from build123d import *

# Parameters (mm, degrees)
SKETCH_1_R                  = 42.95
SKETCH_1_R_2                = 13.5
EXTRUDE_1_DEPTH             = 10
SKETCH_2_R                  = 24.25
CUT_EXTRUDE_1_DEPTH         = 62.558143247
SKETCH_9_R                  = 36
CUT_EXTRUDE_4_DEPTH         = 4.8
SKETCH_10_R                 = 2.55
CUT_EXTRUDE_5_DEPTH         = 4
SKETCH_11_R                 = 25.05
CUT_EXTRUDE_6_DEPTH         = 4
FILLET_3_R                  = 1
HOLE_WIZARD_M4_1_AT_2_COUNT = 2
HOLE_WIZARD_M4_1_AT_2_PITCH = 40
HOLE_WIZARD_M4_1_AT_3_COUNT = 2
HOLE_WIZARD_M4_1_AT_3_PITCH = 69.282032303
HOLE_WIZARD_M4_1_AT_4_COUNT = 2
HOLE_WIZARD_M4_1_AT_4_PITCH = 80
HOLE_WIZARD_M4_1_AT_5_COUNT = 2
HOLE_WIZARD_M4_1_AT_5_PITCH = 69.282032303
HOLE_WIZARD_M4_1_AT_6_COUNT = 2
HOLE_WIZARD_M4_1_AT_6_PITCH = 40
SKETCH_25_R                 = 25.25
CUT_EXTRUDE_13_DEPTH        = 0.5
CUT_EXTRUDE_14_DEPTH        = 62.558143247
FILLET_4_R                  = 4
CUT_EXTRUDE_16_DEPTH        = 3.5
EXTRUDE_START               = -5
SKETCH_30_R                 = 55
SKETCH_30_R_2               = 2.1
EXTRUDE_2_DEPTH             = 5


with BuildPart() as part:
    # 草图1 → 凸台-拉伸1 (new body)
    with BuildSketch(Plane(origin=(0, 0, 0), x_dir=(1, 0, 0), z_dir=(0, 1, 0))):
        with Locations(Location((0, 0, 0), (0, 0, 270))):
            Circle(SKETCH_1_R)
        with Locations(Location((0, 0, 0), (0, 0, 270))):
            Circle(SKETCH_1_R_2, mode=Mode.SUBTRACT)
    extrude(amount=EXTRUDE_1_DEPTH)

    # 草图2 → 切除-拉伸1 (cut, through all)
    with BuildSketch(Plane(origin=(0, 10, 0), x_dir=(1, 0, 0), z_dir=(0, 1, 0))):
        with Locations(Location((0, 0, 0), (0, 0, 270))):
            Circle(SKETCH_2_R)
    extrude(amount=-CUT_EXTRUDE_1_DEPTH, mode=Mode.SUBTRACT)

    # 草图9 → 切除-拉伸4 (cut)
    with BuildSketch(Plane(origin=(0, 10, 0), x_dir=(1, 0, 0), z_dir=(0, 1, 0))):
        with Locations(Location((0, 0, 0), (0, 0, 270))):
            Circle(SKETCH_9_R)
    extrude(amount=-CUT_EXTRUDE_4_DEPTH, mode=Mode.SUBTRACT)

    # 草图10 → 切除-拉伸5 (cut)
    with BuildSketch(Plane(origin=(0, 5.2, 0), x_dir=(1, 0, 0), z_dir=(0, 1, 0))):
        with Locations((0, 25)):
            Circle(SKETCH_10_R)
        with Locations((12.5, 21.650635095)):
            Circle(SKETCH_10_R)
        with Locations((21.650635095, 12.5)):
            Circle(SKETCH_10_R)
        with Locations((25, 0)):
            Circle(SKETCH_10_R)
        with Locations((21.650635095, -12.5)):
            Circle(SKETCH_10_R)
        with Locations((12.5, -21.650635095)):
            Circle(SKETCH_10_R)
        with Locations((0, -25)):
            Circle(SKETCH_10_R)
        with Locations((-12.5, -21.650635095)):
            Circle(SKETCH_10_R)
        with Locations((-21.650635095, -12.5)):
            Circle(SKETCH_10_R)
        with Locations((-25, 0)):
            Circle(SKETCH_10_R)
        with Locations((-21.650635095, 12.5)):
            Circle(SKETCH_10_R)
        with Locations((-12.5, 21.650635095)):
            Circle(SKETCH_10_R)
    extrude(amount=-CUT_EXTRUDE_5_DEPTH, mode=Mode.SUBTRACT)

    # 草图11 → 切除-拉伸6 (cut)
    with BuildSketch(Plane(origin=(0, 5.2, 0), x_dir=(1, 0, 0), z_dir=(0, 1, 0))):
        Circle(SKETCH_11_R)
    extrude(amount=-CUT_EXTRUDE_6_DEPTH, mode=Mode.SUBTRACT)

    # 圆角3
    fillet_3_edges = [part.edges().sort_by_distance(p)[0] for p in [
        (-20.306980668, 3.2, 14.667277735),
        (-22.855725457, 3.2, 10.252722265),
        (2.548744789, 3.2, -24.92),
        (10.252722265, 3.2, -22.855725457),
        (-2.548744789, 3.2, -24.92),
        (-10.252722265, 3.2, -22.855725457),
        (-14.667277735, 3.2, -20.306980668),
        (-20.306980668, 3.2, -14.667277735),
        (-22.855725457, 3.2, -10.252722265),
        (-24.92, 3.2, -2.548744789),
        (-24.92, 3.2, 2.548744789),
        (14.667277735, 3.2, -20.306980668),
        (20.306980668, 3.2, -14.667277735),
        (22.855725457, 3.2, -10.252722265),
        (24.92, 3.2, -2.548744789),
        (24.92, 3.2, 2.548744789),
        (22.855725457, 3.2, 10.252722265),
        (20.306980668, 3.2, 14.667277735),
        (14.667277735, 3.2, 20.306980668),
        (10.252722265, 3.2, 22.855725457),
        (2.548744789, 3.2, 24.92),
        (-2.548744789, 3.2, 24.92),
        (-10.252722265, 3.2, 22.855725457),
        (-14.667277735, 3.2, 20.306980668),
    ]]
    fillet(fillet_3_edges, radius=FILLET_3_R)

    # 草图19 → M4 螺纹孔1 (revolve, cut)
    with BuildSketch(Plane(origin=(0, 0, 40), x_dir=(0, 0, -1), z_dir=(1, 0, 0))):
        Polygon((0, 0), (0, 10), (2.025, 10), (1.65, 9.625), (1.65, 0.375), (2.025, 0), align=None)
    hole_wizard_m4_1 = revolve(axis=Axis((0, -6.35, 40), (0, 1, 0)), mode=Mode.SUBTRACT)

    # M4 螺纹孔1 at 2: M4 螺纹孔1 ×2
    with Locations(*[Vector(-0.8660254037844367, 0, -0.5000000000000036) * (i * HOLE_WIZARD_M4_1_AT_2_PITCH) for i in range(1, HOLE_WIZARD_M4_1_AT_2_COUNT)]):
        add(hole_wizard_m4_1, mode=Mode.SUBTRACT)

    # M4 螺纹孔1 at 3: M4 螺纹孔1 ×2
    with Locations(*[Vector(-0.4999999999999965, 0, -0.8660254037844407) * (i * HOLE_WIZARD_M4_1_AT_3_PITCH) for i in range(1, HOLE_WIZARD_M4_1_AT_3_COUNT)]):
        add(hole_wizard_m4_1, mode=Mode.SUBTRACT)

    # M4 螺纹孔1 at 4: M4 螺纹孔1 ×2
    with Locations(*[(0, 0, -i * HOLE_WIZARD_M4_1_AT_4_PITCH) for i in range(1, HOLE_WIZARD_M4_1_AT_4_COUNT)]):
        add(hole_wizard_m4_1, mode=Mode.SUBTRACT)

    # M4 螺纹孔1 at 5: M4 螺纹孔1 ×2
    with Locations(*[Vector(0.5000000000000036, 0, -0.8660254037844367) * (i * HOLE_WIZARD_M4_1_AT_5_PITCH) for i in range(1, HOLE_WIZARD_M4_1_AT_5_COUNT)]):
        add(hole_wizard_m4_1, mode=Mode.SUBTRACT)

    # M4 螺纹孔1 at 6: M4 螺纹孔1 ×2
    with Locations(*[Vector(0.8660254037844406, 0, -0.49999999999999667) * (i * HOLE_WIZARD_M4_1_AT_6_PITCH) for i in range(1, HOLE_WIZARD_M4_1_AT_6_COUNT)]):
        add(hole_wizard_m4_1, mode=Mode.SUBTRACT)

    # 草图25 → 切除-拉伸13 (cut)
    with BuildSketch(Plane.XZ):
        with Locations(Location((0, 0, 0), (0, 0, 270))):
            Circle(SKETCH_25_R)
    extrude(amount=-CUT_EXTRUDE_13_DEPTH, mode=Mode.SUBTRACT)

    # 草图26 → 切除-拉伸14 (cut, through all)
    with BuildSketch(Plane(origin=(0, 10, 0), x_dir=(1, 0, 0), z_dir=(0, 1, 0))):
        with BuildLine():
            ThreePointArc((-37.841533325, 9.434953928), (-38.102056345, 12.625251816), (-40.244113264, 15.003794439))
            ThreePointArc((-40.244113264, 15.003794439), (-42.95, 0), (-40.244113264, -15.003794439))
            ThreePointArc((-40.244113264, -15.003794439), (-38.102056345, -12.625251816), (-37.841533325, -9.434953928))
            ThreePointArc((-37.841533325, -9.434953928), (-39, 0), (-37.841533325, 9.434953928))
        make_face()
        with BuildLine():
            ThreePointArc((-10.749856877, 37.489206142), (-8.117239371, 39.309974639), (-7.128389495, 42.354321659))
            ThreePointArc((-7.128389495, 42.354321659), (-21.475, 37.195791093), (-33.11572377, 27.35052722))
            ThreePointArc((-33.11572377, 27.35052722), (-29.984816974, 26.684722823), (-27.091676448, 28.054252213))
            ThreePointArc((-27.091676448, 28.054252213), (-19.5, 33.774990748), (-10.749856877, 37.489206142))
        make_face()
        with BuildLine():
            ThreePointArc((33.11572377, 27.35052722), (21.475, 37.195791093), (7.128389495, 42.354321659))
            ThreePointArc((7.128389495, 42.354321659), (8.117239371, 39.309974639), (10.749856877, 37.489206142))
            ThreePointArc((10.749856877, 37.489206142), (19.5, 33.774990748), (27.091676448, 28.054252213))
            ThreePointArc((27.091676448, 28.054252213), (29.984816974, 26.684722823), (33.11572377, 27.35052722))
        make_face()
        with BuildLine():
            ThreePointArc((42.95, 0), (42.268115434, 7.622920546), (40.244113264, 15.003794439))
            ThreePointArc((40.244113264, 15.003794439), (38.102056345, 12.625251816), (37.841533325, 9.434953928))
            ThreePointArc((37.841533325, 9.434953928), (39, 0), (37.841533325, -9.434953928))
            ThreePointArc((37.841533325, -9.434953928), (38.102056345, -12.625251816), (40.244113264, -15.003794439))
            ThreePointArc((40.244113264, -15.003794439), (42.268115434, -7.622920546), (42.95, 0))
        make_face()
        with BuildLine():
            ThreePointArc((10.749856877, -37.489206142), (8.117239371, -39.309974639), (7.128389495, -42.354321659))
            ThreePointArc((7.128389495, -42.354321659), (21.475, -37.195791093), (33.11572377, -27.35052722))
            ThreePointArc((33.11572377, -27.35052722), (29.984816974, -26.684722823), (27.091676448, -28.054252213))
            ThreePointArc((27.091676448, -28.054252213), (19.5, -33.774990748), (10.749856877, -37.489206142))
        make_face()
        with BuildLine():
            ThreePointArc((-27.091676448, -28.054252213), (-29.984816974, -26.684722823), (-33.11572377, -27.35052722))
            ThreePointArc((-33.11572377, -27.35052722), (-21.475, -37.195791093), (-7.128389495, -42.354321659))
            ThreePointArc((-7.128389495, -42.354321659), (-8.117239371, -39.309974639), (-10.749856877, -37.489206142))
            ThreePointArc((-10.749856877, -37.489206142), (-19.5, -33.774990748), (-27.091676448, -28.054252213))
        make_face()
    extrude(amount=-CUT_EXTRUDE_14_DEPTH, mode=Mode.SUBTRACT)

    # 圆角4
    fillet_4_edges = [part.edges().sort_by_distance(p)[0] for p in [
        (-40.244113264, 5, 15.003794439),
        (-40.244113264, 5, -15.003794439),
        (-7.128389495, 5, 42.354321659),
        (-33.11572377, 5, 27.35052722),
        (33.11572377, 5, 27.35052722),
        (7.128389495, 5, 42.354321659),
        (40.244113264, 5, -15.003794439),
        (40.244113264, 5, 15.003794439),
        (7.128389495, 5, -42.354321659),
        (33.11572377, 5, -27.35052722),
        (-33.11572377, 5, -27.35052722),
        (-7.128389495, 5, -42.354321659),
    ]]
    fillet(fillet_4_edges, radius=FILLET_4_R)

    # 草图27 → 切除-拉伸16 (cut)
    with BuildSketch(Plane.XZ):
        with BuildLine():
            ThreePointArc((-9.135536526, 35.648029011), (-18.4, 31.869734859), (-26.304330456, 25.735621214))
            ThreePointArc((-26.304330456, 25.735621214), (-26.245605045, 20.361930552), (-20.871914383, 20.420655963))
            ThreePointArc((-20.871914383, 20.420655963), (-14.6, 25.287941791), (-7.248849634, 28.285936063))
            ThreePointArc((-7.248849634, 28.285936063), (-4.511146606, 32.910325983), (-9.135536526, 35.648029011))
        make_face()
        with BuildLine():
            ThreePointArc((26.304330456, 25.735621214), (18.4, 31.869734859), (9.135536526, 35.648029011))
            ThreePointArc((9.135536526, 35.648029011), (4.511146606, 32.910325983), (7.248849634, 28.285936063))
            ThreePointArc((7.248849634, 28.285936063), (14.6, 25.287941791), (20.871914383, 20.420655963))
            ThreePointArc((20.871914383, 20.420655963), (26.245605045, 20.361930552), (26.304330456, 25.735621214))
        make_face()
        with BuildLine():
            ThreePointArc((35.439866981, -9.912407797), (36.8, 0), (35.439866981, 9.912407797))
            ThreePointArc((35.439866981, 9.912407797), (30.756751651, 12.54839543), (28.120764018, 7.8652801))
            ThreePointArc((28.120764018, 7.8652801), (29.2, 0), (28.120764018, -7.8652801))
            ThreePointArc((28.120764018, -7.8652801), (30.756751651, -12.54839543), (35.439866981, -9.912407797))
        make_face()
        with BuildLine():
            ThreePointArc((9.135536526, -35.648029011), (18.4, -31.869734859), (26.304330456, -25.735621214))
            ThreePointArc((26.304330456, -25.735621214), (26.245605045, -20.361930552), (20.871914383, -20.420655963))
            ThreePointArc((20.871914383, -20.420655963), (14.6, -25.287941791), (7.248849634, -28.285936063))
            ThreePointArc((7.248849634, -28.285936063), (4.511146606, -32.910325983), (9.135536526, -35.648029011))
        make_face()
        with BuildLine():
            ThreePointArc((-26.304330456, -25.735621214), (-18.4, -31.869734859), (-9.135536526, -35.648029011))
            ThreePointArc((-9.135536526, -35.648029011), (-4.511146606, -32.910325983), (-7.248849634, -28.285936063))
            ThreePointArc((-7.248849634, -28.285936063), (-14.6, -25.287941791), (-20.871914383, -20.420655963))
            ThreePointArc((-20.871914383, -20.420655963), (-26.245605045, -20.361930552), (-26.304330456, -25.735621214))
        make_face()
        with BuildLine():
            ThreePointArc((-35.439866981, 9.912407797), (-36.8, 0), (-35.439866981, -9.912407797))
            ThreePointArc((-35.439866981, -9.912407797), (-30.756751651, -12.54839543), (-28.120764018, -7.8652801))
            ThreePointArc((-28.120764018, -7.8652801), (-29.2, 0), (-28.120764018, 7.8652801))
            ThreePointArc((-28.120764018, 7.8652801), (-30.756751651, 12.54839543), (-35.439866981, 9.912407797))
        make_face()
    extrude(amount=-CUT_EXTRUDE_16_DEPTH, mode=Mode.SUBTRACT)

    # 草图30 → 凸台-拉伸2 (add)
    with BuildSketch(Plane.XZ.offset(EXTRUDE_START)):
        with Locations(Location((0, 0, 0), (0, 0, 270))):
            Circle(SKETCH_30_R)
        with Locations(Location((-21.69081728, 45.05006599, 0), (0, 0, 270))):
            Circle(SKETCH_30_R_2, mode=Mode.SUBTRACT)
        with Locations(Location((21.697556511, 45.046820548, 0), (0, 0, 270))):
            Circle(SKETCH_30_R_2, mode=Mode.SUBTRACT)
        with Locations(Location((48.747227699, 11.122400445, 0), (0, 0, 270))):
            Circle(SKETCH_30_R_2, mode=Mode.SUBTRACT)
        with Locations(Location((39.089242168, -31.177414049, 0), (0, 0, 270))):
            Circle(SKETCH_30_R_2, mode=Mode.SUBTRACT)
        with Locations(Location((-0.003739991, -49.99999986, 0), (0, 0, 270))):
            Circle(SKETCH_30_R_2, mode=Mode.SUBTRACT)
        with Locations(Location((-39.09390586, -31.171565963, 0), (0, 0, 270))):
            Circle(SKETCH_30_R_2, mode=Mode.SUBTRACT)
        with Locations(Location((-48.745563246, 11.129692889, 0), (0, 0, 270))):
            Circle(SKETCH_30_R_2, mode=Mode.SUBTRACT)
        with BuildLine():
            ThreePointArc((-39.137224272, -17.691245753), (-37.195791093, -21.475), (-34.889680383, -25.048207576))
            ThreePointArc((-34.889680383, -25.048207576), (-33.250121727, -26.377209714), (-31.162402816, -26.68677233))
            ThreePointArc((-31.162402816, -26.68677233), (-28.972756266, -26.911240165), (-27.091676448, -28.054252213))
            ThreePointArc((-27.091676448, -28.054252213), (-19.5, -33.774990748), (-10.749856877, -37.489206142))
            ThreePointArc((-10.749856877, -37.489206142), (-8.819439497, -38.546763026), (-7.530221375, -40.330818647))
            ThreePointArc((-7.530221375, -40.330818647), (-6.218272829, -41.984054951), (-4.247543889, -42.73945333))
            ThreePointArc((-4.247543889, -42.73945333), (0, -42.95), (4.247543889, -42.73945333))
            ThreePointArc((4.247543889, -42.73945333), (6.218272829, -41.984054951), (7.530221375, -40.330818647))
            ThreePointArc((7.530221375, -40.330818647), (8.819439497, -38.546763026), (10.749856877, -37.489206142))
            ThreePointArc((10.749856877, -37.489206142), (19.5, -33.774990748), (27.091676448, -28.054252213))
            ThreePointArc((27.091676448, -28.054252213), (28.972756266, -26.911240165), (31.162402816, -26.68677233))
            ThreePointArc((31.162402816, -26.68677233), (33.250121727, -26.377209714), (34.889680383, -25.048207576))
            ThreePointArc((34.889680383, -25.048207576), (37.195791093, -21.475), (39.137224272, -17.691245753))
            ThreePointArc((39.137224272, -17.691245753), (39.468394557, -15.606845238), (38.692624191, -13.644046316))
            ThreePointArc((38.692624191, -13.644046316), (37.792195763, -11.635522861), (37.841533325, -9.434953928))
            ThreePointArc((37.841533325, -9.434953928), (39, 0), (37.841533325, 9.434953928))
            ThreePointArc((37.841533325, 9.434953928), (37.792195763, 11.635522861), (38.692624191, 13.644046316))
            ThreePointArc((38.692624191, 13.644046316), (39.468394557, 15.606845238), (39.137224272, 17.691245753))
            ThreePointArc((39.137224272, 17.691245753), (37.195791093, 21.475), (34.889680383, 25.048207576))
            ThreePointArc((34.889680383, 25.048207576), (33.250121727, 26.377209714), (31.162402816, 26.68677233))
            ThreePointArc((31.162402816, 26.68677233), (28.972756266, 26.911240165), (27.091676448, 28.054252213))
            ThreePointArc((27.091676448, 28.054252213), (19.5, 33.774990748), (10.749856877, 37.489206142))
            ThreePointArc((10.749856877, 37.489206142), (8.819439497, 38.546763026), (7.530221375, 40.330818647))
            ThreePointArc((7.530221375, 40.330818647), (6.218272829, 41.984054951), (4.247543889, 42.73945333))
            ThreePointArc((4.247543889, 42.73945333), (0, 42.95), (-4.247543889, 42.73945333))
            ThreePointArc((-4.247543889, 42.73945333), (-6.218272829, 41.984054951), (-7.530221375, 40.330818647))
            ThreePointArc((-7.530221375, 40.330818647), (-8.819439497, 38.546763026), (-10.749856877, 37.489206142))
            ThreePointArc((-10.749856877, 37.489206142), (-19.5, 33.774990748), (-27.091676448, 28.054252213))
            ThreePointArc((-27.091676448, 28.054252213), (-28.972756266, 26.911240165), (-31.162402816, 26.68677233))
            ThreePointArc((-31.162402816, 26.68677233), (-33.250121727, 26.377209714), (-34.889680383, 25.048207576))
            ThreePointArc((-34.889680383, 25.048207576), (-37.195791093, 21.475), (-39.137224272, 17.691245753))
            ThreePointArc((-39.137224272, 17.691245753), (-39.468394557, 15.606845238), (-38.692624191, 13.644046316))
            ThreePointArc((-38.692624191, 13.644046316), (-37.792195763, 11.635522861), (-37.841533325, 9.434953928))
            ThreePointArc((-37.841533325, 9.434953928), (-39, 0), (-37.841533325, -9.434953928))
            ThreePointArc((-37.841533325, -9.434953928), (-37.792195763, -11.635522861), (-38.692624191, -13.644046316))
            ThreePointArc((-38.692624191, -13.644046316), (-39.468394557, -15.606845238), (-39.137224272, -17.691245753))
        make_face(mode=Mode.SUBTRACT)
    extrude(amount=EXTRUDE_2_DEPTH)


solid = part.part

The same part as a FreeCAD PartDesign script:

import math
import FreeCAD as App
import Part
import Sketcher


def edges_at(feature, points):
    """Names of the edges that pass closest to the given points."""
    edges = feature.Shape.Edges
    near = lambda p: min(range(len(edges)), key=lambda i: edges[i].distToShape(Part.Vertex(*p))[0])
    return sorted({f"Edge{near(p) + 1}" for p in points})


def add_polygon(sketch, points):
    """Adds a closed chain of lines whose ends are joined by coincident constraints."""
    first, n = sketch.GeometryCount, len(points)
    for a, b in zip(points, points[1:] + points[:1]):
        sketch.addGeometry(Part.LineSegment(App.Vector(*a, 0), App.Vector(*b, 0)), False)
    for i in range(n):
        sketch.addConstraint(Sketcher.Constraint("Coincident", first + i, 2, first + (i + 1) % n, 1))

doc = App.newDocument("Part")
body = doc.addObject("PartDesign::Body", "Body")

sketch1 = body.newObject("Sketcher::SketchObject", "Sketch")
sketch1.AttachmentSupport = (doc.getObject("XZ_Plane"), [""])
sketch1.MapMode = "FlatFace"
sketch1.addGeometry([
    Part.Circle(App.Vector(0, 0, 0), App.Vector(0, 0, 1), 42.95),
    Part.Circle(App.Vector(0, 0, 0), App.Vector(0, 0, 1), 13.5),
], False)
sketch1.addConstraint([
    Sketcher.Constraint("Coincident", 0, 3, -1, 1),
    Sketcher.Constraint("Coincident", 1, 3, -1, 1),
    Sketcher.Constraint("Diameter", 1, 27.0),
    Sketcher.Constraint("Diameter", 0, 85.9),
])
pad1 = body.newObject("PartDesign::Pad", "Pad")
pad1.Profile = sketch1
pad1.Length = 10
pad1.Reversed = True

sketch2 = body.newObject("Sketcher::SketchObject", "Sketch001")
sketch2.AttachmentSupport = (doc.getObject("XZ_Plane"), [""])
sketch2.MapMode = "FlatFace"
sketch2.AttachmentOffset = App.Placement(App.Vector(0, 0, -10), App.Rotation())
sketch2.addGeometry(Part.Circle(App.Vector(0, 0, 0), App.Vector(0, 0, 1), 24.25), False)
sketch2.addConstraint([
    Sketcher.Constraint("Coincident", 0, 3, -1, 1),
    Sketcher.Constraint("Diameter", 0, 48.5),
])
pocket1 = body.newObject("PartDesign::Pocket", "Pocket")
pocket1.Profile = sketch2
pocket1.Type = "ThroughAll"
pocket1.Reversed = True

sketch3 = body.newObject("Sketcher::SketchObject", "Sketch002")
sketch3.AttachmentSupport = (doc.getObject("XZ_Plane"), [""])
sketch3.MapMode = "FlatFace"
sketch3.AttachmentOffset = App.Placement(App.Vector(0, 0, -10), App.Rotation())
sketch3.addGeometry(Part.Circle(App.Vector(0, 0, 0), App.Vector(0, 0, 1), 36), False)
sketch3.addConstraint([
    Sketcher.Constraint("Coincident", 0, 3, -1, 1),
    Sketcher.Constraint("Diameter", 0, 72.0),
])
pocket2 = body.newObject("PartDesign::Pocket", "Pocket001")
pocket2.Profile = sketch3
pocket2.Length = 4.8
pocket2.Reversed = True

sketch4 = body.newObject("Sketcher::SketchObject", "Sketch003")
sketch4.AttachmentSupport = (doc.getObject("XZ_Plane"), [""])
sketch4.MapMode = "FlatFace"
sketch4.AttachmentOffset = App.Placement(App.Vector(0, 0, -5.2), App.Rotation())
sketch4.addGeometry([
    Part.Circle(App.Vector(0, -25, 0), App.Vector(0, 0, 1), 2.55),
    Part.Circle(App.Vector(12.5, -21.650635, 0), App.Vector(0, 0, 1), 2.55),
    Part.Circle(App.Vector(21.650635, -12.5, 0), App.Vector(0, 0, 1), 2.55),
    Part.Circle(App.Vector(25, 0, 0), App.Vector(0, 0, 1), 2.55),
    Part.Circle(App.Vector(21.650635, 12.5, 0), App.Vector(0, 0, 1), 2.55),
    Part.Circle(App.Vector(12.5, 21.650635, 0), App.Vector(0, 0, 1), 2.55),
    Part.Circle(App.Vector(0, 25, 0), App.Vector(0, 0, 1), 2.55),
    Part.Circle(App.Vector(-12.5, 21.650635, 0), App.Vector(0, 0, 1), 2.55),
    Part.Circle(App.Vector(-21.650635, 12.5, 0), App.Vector(0, 0, 1), 2.55),
    Part.Circle(App.Vector(-25, 0, 0), App.Vector(0, 0, 1), 2.55),
    Part.Circle(App.Vector(-21.650635, -12.5, 0), App.Vector(0, 0, 1), 2.55),
    Part.Circle(App.Vector(-12.5, -21.650635, 0), App.Vector(0, 0, 1), 2.55),
], False)
sketch4.addConstraint([
    Sketcher.Constraint("Equal", 0, 1),
    Sketcher.Constraint("Equal", 1, 2),
    Sketcher.Constraint("Equal", 2, 3),
    Sketcher.Constraint("Equal", 3, 4),
    Sketcher.Constraint("Equal", 4, 5),
    Sketcher.Constraint("Equal", 5, 6),
    Sketcher.Constraint("Equal", 6, 7),
    Sketcher.Constraint("Equal", 7, 8),
    Sketcher.Constraint("Equal", 8, 9),
    Sketcher.Constraint("Equal", 9, 10),
    Sketcher.Constraint("Equal", 10, 11),
    Sketcher.Constraint("Symmetric", 0, 3, 6, 3, -1, 1),
    Sketcher.Constraint("Symmetric", 1, 3, 7, 3, -1, 1),
    Sketcher.Constraint("Symmetric", 2, 3, 8, 3, -1, 1),
    Sketcher.Constraint("Symmetric", 3, 3, 9, 3, -1, 1),
    Sketcher.Constraint("Symmetric", 4, 3, 10, 3, -1, 1),
    Sketcher.Constraint("Symmetric", 5, 3, 11, 3, -1, 1),
    Sketcher.Constraint("Symmetric", 5, 3, 7, 3, -2),
    Sketcher.Constraint("Symmetric", 4, 3, 8, 3, -2),
    Sketcher.Constraint("PointOnObject", 0, 3, -2),
    Sketcher.Constraint("PointOnObject", 3, 3, -1),
    Sketcher.Constraint("Diameter", 0, 5.1),
    Sketcher.Constraint("DistanceY", 0, 3, -1, 1, 25.0),
    Sketcher.Constraint("DistanceX", -1, 1, 3, 3, 25.0),
    Sketcher.Constraint("DistanceY", 2, 3, 4, 3, 25.0),
    Sketcher.Constraint("DistanceX", 7, 3, 5, 3, 25.0),
    Sketcher.Constraint("DistanceY", 1, 3, 5, 3, 43.30127),
    Sketcher.Constraint("DistanceX", 8, 3, 4, 3, 43.30127),
])
pocket3 = body.newObject("PartDesign::Pocket", "Pocket002")
pocket3.Profile = sketch4
pocket3.Length = 4
pocket3.Reversed = True

sketch5 = body.newObject("Sketcher::SketchObject", "Sketch004")
sketch5.AttachmentSupport = (doc.getObject("XZ_Plane"), [""])
sketch5.MapMode = "FlatFace"
sketch5.AttachmentOffset = App.Placement(App.Vector(0, 0, -5.2), App.Rotation())
sketch5.addGeometry(Part.Circle(App.Vector(0, 0, 0), App.Vector(0, 0, 1), 25.05), False)
sketch5.addConstraint([
    Sketcher.Constraint("Coincident", 0, 3, -1, 1),
    Sketcher.Constraint("Diameter", 0, 50.1),
])
pocket4 = body.newObject("PartDesign::Pocket", "Pocket003")
pocket4.Profile = sketch5
pocket4.Length = 4
pocket4.Reversed = True
doc.recompute()

fillet = body.newObject("PartDesign::Fillet", "Fillet")
fillet.Base = (pocket4, edges_at(pocket4, [
    (-20.307, 3.2, 14.667),
    (-22.856, 3.2, 10.253),
    (2.549, 3.2, -24.92),
    (10.253, 3.2, -22.856),
    (-2.549, 3.2, -24.92),
    (-10.253, 3.2, -22.856),
    (-14.667, 3.2, -20.307),
    (-20.307, 3.2, -14.667),
    (-22.856, 3.2, -10.253),
    (-24.92, 3.2, -2.549),
    (-24.92, 3.2, 2.549),
    (14.667, 3.2, -20.307),
    (20.307, 3.2, -14.667),
    (22.856, 3.2, -10.253),
    (24.92, 3.2, -2.549),
    (24.92, 3.2, 2.549),
    (22.856, 3.2, 10.253),
    (20.307, 3.2, 14.667),
    (14.667, 3.2, 20.307),
    (10.253, 3.2, 22.856),
    (2.549, 3.2, 24.92),
    (-2.549, 3.2, 24.92),
    (-10.253, 3.2, 22.856),
    (-14.667, 3.2, 20.307),
]))
fillet.Radius = 1

sketch6 = body.newObject("Sketcher::SketchObject", "Sketch005")
sketch6.AttachmentSupport = (doc.getObject("YZ_Plane"), [""])
sketch6.MapMode = "FlatFace"
add_polygon(sketch6, [(10, 40), (0, 40), (0, 37.975), (0.375, 38.35), (9.625, 38.35), (10, 37.975)])
sketch6.addGeometry(Part.LineSegment(App.Vector(0, 40, 0), App.Vector(10, 40, 0)), True)
sketch6.addConstraint([
    Sketcher.Constraint("Horizontal", 0),
    Sketcher.Constraint("Vertical", 1),
    Sketcher.Constraint("Horizontal", 3),
    Sketcher.Constraint("Vertical", 5),
    Sketcher.Constraint("Horizontal", 6),
    Sketcher.Constraint("Coincident", 6, 1, 0, 2),
    Sketcher.Constraint("PointOnObject", 0, 2, -2),
    Sketcher.Constraint("Perpendicular", 2, 4),
    Sketcher.Constraint("Horizontal", 1, 2, 4, 2),
    Sketcher.Constraint("Vertical", 4, 2, 6, 2),
    Sketcher.Constraint("Equal", 2, 4),
    Sketcher.Constraint("DistanceX", 0, 2, 0, 1, 10.0),
    Sketcher.Constraint("DistanceY", -1, 1, 0, 2, 40.0),
    Sketcher.Constraint("DistanceX", 3, 1, 3, 2, 9.25),
    Sketcher.Constraint("DistanceY", 1, 2, 1, 1, 2.025),
])
groove = body.newObject("PartDesign::Groove", "Groove")
groove.Profile = sketch6
groove.ReferenceAxis = (sketch6, ["Axis0"])
groove.Angle = 360
doc.recompute()

datumline = body.newObject("PartDesign::Line", "DatumLine")
datumline.Placement = App.Placement(App.Vector(0, 0, 0), App.Rotation(App.Vector(0, 0, 1), App.Vector(-0.866025404, 0, -0.5)))
linearpattern = body.newObject("PartDesign::LinearPattern", "LinearPattern")
linearpattern.Originals = [groove]
linearpattern.Direction = (datumline, [""])
linearpattern.Mode = "offset"
linearpattern.Offset = 40
linearpattern.Occurrences = 2
body.Tip = linearpattern
doc.recompute()

datumline2 = body.newObject("PartDesign::Line", "DatumLine001")
datumline2.Placement = App.Placement(App.Vector(0, 0, 0), App.Rotation(App.Vector(0, 0, 1), App.Vector(-0.5, 0, -0.866025404)))
linearpattern2 = body.newObject("PartDesign::LinearPattern", "LinearPattern001")
linearpattern2.Originals = [groove]
linearpattern2.Direction = (datumline2, [""])
linearpattern2.Mode = "offset"
linearpattern2.Offset = 69.282032
linearpattern2.Occurrences = 2
body.Tip = linearpattern2
doc.recompute()

linearpattern3 = body.newObject("PartDesign::LinearPattern", "LinearPattern002")
linearpattern3.Originals = [groove]
linearpattern3.Direction = (doc.getObject("Z_Axis"), [""])
linearpattern3.Mode = "offset"
linearpattern3.Offset = 80
linearpattern3.Occurrences = 2
linearpattern3.Reversed = True
body.Tip = linearpattern3
doc.recompute()

datumline3 = body.newObject("PartDesign::Line", "DatumLine002")
datumline3.Placement = App.Placement(App.Vector(0, 0, 0), App.Rotation(App.Vector(0, 0, 1), App.Vector(0.5, 0, -0.866025404)))
linearpattern4 = body.newObject("PartDesign::LinearPattern", "LinearPattern003")
linearpattern4.Originals = [groove]
linearpattern4.Direction = (datumline3, [""])
linearpattern4.Mode = "offset"
linearpattern4.Offset = 69.282032
linearpattern4.Occurrences = 2
body.Tip = linearpattern4
doc.recompute()

datumline4 = body.newObject("PartDesign::Line", "DatumLine003")
datumline4.Placement = App.Placement(App.Vector(0, 0, 0), App.Rotation(App.Vector(0, 0, 1), App.Vector(0.866025404, 0, -0.5)))
linearpattern5 = body.newObject("PartDesign::LinearPattern", "LinearPattern004")
linearpattern5.Originals = [groove]
linearpattern5.Direction = (datumline4, [""])
linearpattern5.Mode = "offset"
linearpattern5.Offset = 40
linearpattern5.Occurrences = 2
body.Tip = linearpattern5

sketch7 = body.newObject("Sketcher::SketchObject", "Sketch006")
sketch7.AttachmentSupport = (doc.getObject("XZ_Plane"), [""])
sketch7.MapMode = "FlatFace"
sketch7.addGeometry(Part.Circle(App.Vector(0, 0, 0), App.Vector(0, 0, 1), 25.25), False)
sketch7.addConstraint([
    Sketcher.Constraint("Coincident", 0, 3, -1, 1),
    Sketcher.Constraint("Diameter", 0, 50.5),
])
pocket5 = body.newObject("PartDesign::Pocket", "Pocket004")
pocket5.Profile = sketch7
pocket5.Length = 0.5

sketch8 = body.newObject("Sketcher::SketchObject", "Sketch007")
sketch8.AttachmentSupport = (doc.getObject("XZ_Plane"), [""])
sketch8.MapMode = "FlatFace"
sketch8.AttachmentOffset = App.Placement(App.Vector(0, 0, -10), App.Rotation())
sketch8.addGeometry([
    Part.ArcOfCircle(Part.Circle(App.Vector(-42.693012, -10.644563, 0), App.Vector(0, 0, 1), 5), math.radians(-60.673895), math.radians(14)),
    Part.ArcOfCircle(Part.Circle(App.Vector(0, 0, 0), App.Vector(0, 0, 1), 42.95), math.radians(159.553559), math.radians(200.446441)),
    Part.ArcOfCircle(Part.Circle(App.Vector(-42.693012, 10.644563, 0), App.Vector(0, 0, 1), 5), math.radians(-14), math.radians(60.673895)),
    Part.ArcOfCircle(Part.Circle(App.Vector(0, 0, 0), App.Vector(0, 0, 1), 39), math.radians(166), math.radians(194)),
    Part.ArcOfCircle(Part.Circle(App.Vector(-12.128044, -42.295515, 0), App.Vector(0, 0, 1), 5), math.radians(-0.673895), math.radians(74)),
    Part.ArcOfCircle(Part.Circle(App.Vector(0, 0, 0), App.Vector(0, 0, 1), 42.95), math.radians(-140.446441), math.radians(-99.553559)),
    Part.ArcOfCircle(Part.Circle(App.Vector(-30.564968, -31.650951, 0), App.Vector(0, 0, 1), 5), math.radians(46), math.radians(120.673895)),
    Part.ArcOfCircle(Part.Circle(App.Vector(0, 0, 0), App.Vector(0, 0, 1), 39), math.radians(-134), math.radians(-106)),
    Part.ArcOfCircle(Part.Circle(App.Vector(0, 0, 0), App.Vector(0, 0, 1), 42.95), math.radians(-80.446441), math.radians(-39.553559)),
    Part.ArcOfCircle(Part.Circle(App.Vector(12.128044, -42.295515, 0), App.Vector(0, 0, 1), 5), math.radians(106), math.radians(180.673895)),
    Part.ArcOfCircle(Part.Circle(App.Vector(0, 0, 0), App.Vector(0, 0, 1), 39), math.radians(-74), math.radians(-46)),
    Part.ArcOfCircle(Part.Circle(App.Vector(30.564968, -31.650951, 0), App.Vector(0, 0, 1), 5), math.radians(59.326105), math.radians(134)),
    Part.ArcOfCircle(Part.Circle(App.Vector(0, 0, 0), App.Vector(0, 0, 1), 42.95), math.radians(-20.446441), math.radians(0)),
    Part.ArcOfCircle(Part.Circle(App.Vector(42.693012, -10.644563, 0), App.Vector(0, 0, 1), 5), math.radians(166), math.radians(240.673895)),
    Part.ArcOfCircle(Part.Circle(App.Vector(0, 0, 0), App.Vector(0, 0, 1), 39), math.radians(-14), math.radians(14)),
    Part.ArcOfCircle(Part.Circle(App.Vector(42.693012, 10.644563, 0), App.Vector(0, 0, 1), 5), math.radians(119.326105), math.radians(194)),
    Part.ArcOfCircle(Part.Circle(App.Vector(0, 0, 0), App.Vector(0, 0, 1), 42.95), math.radians(0), math.radians(20.446441)),
    Part.ArcOfCircle(Part.Circle(App.Vector(12.128044, 42.295515, 0), App.Vector(0, 0, 1), 5), math.radians(179.326105), math.radians(254)),
    Part.ArcOfCircle(Part.Circle(App.Vector(0, 0, 0), App.Vector(0, 0, 1), 42.95), math.radians(39.553559), math.radians(80.446441)),
    Part.ArcOfCircle(Part.Circle(App.Vector(30.564968, 31.650951, 0), App.Vector(0, 0, 1), 5), math.radians(-134), math.radians(-59.326105)),
    Part.ArcOfCircle(Part.Circle(App.Vector(0, 0, 0), App.Vector(0, 0, 1), 39), math.radians(46), math.radians(74)),
    Part.ArcOfCircle(Part.Circle(App.Vector(-30.564968, 31.650951, 0), App.Vector(0, 0, 1), 5), math.radians(-120.673895), math.radians(-46)),
    Part.ArcOfCircle(Part.Circle(App.Vector(0, 0, 0), App.Vector(0, 0, 1), 42.95), math.radians(99.553559), math.radians(140.446441)),
    Part.ArcOfCircle(Part.Circle(App.Vector(-12.128044, 42.295515, 0), App.Vector(0, 0, 1), 5), math.radians(-74), math.radians(0.673895)),
    Part.ArcOfCircle(Part.Circle(App.Vector(0, 0, 0), App.Vector(0, 0, 1), 39), math.radians(106), math.radians(134)),
], False)
sketch8.addConstraint([
    Sketcher.Constraint("Coincident", 0, 1, 1, 2),
    Sketcher.Constraint("Coincident", 1, 1, 2, 2),
    Sketcher.Constraint("Tangent", 2, 1, 3, 1),
    Sketcher.Constraint("Tangent", 3, 2, 0, 2),
    Sketcher.Constraint("Coincident", 4, 1, 5, 2),
    Sketcher.Constraint("Coincident", 5, 1, 6, 2),
    Sketcher.Constraint("Tangent", 6, 1, 7, 1),
    Sketcher.Constraint("Tangent", 7, 2, 4, 2),
    Sketcher.Constraint("Coincident", 8, 1, 9, 2),
    Sketcher.Constraint("Tangent", 9, 1, 10, 1),
    Sketcher.Constraint("Tangent", 10, 2, 11, 2),
    Sketcher.Constraint("Coincident", 11, 1, 8, 2),
    Sketcher.Constraint("Coincident", 12, 1, 13, 2),
    Sketcher.Constraint("Tangent", 13, 1, 14, 1),
    Sketcher.Constraint("Tangent", 14, 2, 15, 2),
    Sketcher.Constraint("Coincident", 15, 1, 16, 2),
    Sketcher.Constraint("Tangent", 16, 1, 12, 2),
    Sketcher.Constraint("Coincident", 17, 1, 18, 2),
    Sketcher.Constraint("Coincident", 18, 1, 19, 2),
    Sketcher.Constraint("Tangent", 19, 1, 20, 1),
    Sketcher.Constraint("Tangent", 20, 2, 17, 2),
    Sketcher.Constraint("Coincident", 21, 1, 22, 2),
    Sketcher.Constraint("Coincident", 22, 1, 23, 2),
    Sketcher.Constraint("Tangent", 23, 1, 24, 1),
    Sketcher.Constraint("Tangent", 24, 2, 21, 2),
    Sketcher.Constraint("Coincident", 1, 3, -1, 1),
    Sketcher.Constraint("Coincident", 3, 3, -1, 1),
    Sketcher.Constraint("Coincident", 5, 3, -1, 1),
    Sketcher.Constraint("Coincident", 7, 3, -1, 1),
    Sketcher.Constraint("Coincident", 8, 3, -1, 1),
    Sketcher.Constraint("Coincident", 10, 3, -1, 1),
    Sketcher.Constraint("Coincident", 12, 3, -1, 1),
    Sketcher.Constraint("Coincident", 14, 3, -1, 1),
    Sketcher.Constraint("Coincident", 18, 3, -1, 1),
    Sketcher.Constraint("Coincident", 20, 3, -1, 1),
    Sketcher.Constraint("Coincident", 22, 3, -1, 1),
    Sketcher.Constraint("Coincident", 24, 3, -1, 1),
    Sketcher.Constraint("Equal", 0, 2),
    Sketcher.Constraint("Equal", 2, 4),
    Sketcher.Constraint("Equal", 1, 5),
    Sketcher.Constraint("Equal", 4, 6),
    Sketcher.Constraint("Equal", 3, 7),
    Sketcher.Constraint("Equal", 5, 8),
    Sketcher.Constraint("Equal", 6, 9),
    Sketcher.Constraint("Equal", 7, 10),
    Sketcher.Constraint("Equal", 9, 11),
    Sketcher.Constraint("Equal", 8, 12),
    Sketcher.Constraint("Equal", 11, 13),
    Sketcher.Constraint("Equal", 10, 14),
    Sketcher.Constraint("Equal", 13, 15),
    Sketcher.Constraint("Equal", 12, 16),
    Sketcher.Constraint("Equal", 15, 17),
    Sketcher.Constraint("Equal", 16, 18),
    Sketcher.Constraint("Equal", 17, 19),
    Sketcher.Constraint("Equal", 14, 20),
    Sketcher.Constraint("Equal", 19, 21),
    Sketcher.Constraint("Equal", 18, 22),
    Sketcher.Constraint("Equal", 21, 23),
    Sketcher.Constraint("Equal", 20, 24),
    Sketcher.Constraint("PointOnObject", 16, 1, -1),
    Sketcher.Constraint("Horizontal", 4, 3, 9, 3),
    Sketcher.Constraint("Horizontal", 6, 3, 11, 3),
    Sketcher.Constraint("Horizontal", 0, 3, 13, 3),
    Sketcher.Constraint("Horizontal", 2, 3, 15, 3),
    Sketcher.Constraint("Horizontal", 19, 3, 21, 3),
    Sketcher.Constraint("Horizontal", 17, 3, 23, 3),
    Sketcher.Constraint("Vertical", 0, 3, 2, 3),
    Sketcher.Constraint("Vertical", 9, 3, 17, 3),
    Sketcher.Constraint("Vertical", 11, 3, 19, 3),
    Sketcher.Constraint("Radius", 0, 5.0),
    Sketcher.Constraint("Radius", 3, 39.0),
    Sketcher.Constraint("Radius", 1, 42.95),
    Sketcher.Constraint("DistanceX", 0, 3, 0, 1, 2.448899),
    Sketcher.Constraint("DistanceY", 6, 3, 6, 1, 3.596699),
    Sketcher.Constraint("DistanceX", 7, 2, 9, 3, 22.877901),
])
pocket6 = body.newObject("PartDesign::Pocket", "Pocket005")
pocket6.Profile = sketch8
pocket6.Type = "ThroughAll"
pocket6.Reversed = True
doc.recompute()

fillet2 = body.newObject("PartDesign::Fillet", "Fillet001")
fillet2.Base = (pocket6, edges_at(pocket6, [
    (-40.244, 5, 15.004),
    (-40.244, 5, -15.004),
    (-7.128, 5, 42.354),
    (-33.116, 5, 27.351),
    (33.116, 5, 27.351),
    (7.128, 5, 42.354),
    (40.244, 5, -15.004),
    (40.244, 5, 15.004),
    (7.128, 5, -42.354),
    (33.116, 5, -27.351),
    (-33.116, 5, -27.351),
    (-7.128, 5, -42.354),
]))
fillet2.Radius = 4

sketch9 = body.newObject("Sketcher::SketchObject", "Sketch008")
sketch9.AttachmentSupport = (doc.getObject("XZ_Plane"), [""])
sketch9.MapMode = "FlatFace"
sketch9.addGeometry([
    Part.ArcOfCircle(Part.Circle(App.Vector(0, 0, 0), App.Vector(0, 0, 1), 36.8), math.radians(104.373878), math.radians(135.626122)),
    Part.ArcOfCircle(Part.Circle(App.Vector(-23.588122, 23.078139, 0), App.Vector(0, 0, 1), 3.8), math.radians(135.626122), math.radians(315.626122)),
    Part.ArcOfCircle(Part.Circle(App.Vector(0, 0, 0), App.Vector(0, 0, 1), 29.2), math.radians(104.373878), math.radians(135.626122)),
    Part.ArcOfCircle(Part.Circle(App.Vector(-8.192193, 31.966983, 0), App.Vector(0, 0, 1), 3.8), math.radians(-75.626122), math.radians(104.373878)),
    Part.ArcOfCircle(Part.Circle(App.Vector(0, 0, 0), App.Vector(0, 0, 1), 36.8), math.radians(44.373878), math.radians(75.626122)),
    Part.ArcOfCircle(Part.Circle(App.Vector(8.192193, 31.966983, 0), App.Vector(0, 0, 1), 3.8), math.radians(75.626122), math.radians(255.626122)),
    Part.ArcOfCircle(Part.Circle(App.Vector(0, 0, 0), App.Vector(0, 0, 1), 29.2), math.radians(44.373878), math.radians(75.626122)),
    Part.ArcOfCircle(Part.Circle(App.Vector(23.588122, 23.078139, 0), App.Vector(0, 0, 1), 3.8), math.radians(-135.626122), math.radians(44.373878)),
    Part.ArcOfCircle(Part.Circle(App.Vector(0, 0, 0), App.Vector(0, 0, 1), 36.8), math.radians(-15.626122), math.radians(15.626122)),
    Part.ArcOfCircle(Part.Circle(App.Vector(31.780315, 8.888844, 0), App.Vector(0, 0, 1), 3.8), math.radians(15.626122), math.radians(195.626122)),
    Part.ArcOfCircle(Part.Circle(App.Vector(0, 0, 0), App.Vector(0, 0, 1), 29.2), math.radians(-15.626122), math.radians(15.626122)),
    Part.ArcOfCircle(Part.Circle(App.Vector(31.780315, -8.888844, 0), App.Vector(0, 0, 1), 3.8), math.radians(164.373878), math.radians(344.373878)),
    Part.ArcOfCircle(Part.Circle(App.Vector(0, 0, 0), App.Vector(0, 0, 1), 36.8), math.radians(-75.626122), math.radians(-44.373878)),
    Part.ArcOfCircle(Part.Circle(App.Vector(23.588122, -23.078139, 0), App.Vector(0, 0, 1), 3.8), math.radians(-44.373878), math.radians(135.626122)),
    Part.ArcOfCircle(Part.Circle(App.Vector(0, 0, 0), App.Vector(0, 0, 1), 29.2), math.radians(-75.626122), math.radians(-44.373878)),
    Part.ArcOfCircle(Part.Circle(App.Vector(8.192193, -31.966983, 0), App.Vector(0, 0, 1), 3.8), math.radians(104.373878), math.radians(284.373878)),
    Part.ArcOfCircle(Part.Circle(App.Vector(0, 0, 0), App.Vector(0, 0, 1), 36.8), math.radians(-135.626122), math.radians(-104.373878)),
    Part.ArcOfCircle(Part.Circle(App.Vector(-8.192193, -31.966983, 0), App.Vector(0, 0, 1), 3.8), math.radians(-104.373878), math.radians(75.626122)),
    Part.ArcOfCircle(Part.Circle(App.Vector(0, 0, 0), App.Vector(0, 0, 1), 29.2), math.radians(-135.626122), math.radians(-104.373878)),
    Part.ArcOfCircle(Part.Circle(App.Vector(-23.588122, -23.078139, 0), App.Vector(0, 0, 1), 3.8), math.radians(44.373878), math.radians(224.373878)),
    Part.ArcOfCircle(Part.Circle(App.Vector(0, 0, 0), App.Vector(0, 0, 1), 36.8), math.radians(164.373878), math.radians(195.626122)),
    Part.ArcOfCircle(Part.Circle(App.Vector(-31.780315, -8.888844, 0), App.Vector(0, 0, 1), 3.8), math.radians(-164.373878), math.radians(15.626122)),
    Part.ArcOfCircle(Part.Circle(App.Vector(0, 0, 0), App.Vector(0, 0, 1), 29.2), math.radians(164.373878), math.radians(195.626122)),
    Part.ArcOfCircle(Part.Circle(App.Vector(-31.780315, 8.888844, 0), App.Vector(0, 0, 1), 3.8), math.radians(-15.626122), math.radians(164.373878)),
], False)
sketch9.addConstraint([
    Sketcher.Constraint("Tangent", 0, 2, 1, 1),
    Sketcher.Constraint("Tangent", 1, 2, 2, 2),
    Sketcher.Constraint("Tangent", 2, 1, 3, 1),
    Sketcher.Constraint("Tangent", 3, 2, 0, 1),
    Sketcher.Constraint("Tangent", 4, 2, 5, 1),
    Sketcher.Constraint("Tangent", 5, 2, 6, 2),
    Sketcher.Constraint("Tangent", 6, 1, 7, 1),
    Sketcher.Constraint("Tangent", 7, 2, 4, 1),
    Sketcher.Constraint("Tangent", 8, 2, 9, 1),
    Sketcher.Constraint("Tangent", 9, 2, 10, 2),
    Sketcher.Constraint("Tangent", 10, 1, 11, 1),
    Sketcher.Constraint("Tangent", 11, 2, 8, 1),
    Sketcher.Constraint("Tangent", 12, 2, 13, 1),
    Sketcher.Constraint("Tangent", 13, 2, 14, 2),
    Sketcher.Constraint("Tangent", 14, 1, 15, 1),
    Sketcher.Constraint("Tangent", 15, 2, 12, 1),
    Sketcher.Constraint("Tangent", 16, 2, 17, 1),
    Sketcher.Constraint("Tangent", 17, 2, 18, 2),
    Sketcher.Constraint("Tangent", 18, 1, 19, 1),
    Sketcher.Constraint("Tangent", 19, 2, 16, 1),
    Sketcher.Constraint("Tangent", 20, 2, 21, 1),
    Sketcher.Constraint("Tangent", 21, 2, 22, 2),
    Sketcher.Constraint("Tangent", 22, 1, 23, 1),
    Sketcher.Constraint("Tangent", 23, 2, 20, 1),
    Sketcher.Constraint("Coincident", 0, 3, -1, 1),
    Sketcher.Constraint("Coincident", 2, 3, -1, 1),
    Sketcher.Constraint("Coincident", 4, 3, -1, 1),
    Sketcher.Constraint("Coincident", 6, 3, -1, 1),
    Sketcher.Constraint("Coincident", 8, 3, -1, 1),
    Sketcher.Constraint("Coincident", 10, 3, -1, 1),
    Sketcher.Constraint("Coincident", 12, 3, -1, 1),
    Sketcher.Constraint("Coincident", 14, 3, -1, 1),
    Sketcher.Constraint("Coincident", 16, 3, -1, 1),
    Sketcher.Constraint("Coincident", 18, 3, -1, 1),
    Sketcher.Constraint("Coincident", 20, 3, -1, 1),
    Sketcher.Constraint("Coincident", 22, 3, -1, 1),
    Sketcher.Constraint("Equal", 0, 4),
    Sketcher.Constraint("Equal", 3, 5),
    Sketcher.Constraint("Equal", 4, 8),
    Sketcher.Constraint("Equal", 7, 9),
    Sketcher.Constraint("Equal", 8, 12),
    Sketcher.Constraint("Equal", 11, 13),
    Sketcher.Constraint("Equal", 12, 16),
    Sketcher.Constraint("Equal", 15, 17),
    Sketcher.Constraint("Equal", 16, 20),
    Sketcher.Constraint("Equal", 19, 21),
    Sketcher.Constraint("Horizontal", 3, 3, 5, 3),
    Sketcher.Constraint("Horizontal", 1, 3, 7, 3),
    Sketcher.Constraint("Horizontal", 15, 3, 17, 3),
    Sketcher.Constraint("Horizontal", 13, 3, 19, 3),
    Sketcher.Constraint("Horizontal", 11, 3, 21, 3),
    Sketcher.Constraint("Horizontal", 9, 3, 23, 3),
    Sketcher.Constraint("Vertical", 9, 3, 11, 3),
    Sketcher.Constraint("Vertical", 7, 3, 13, 3),
    Sketcher.Constraint("Vertical", 5, 3, 15, 3),
    Sketcher.Constraint("Radius", 0, 36.8),
    Sketcher.Constraint("Radius", 1, 3.8),
    Sketcher.Constraint("DistanceX", 23, 3, 1, 2, 10.908401),
    Sketcher.Constraint("DistanceX", 2, 1, 5, 2, 14.497699),
    Sketcher.Constraint("DistanceY", -1, 1, 1, 3, 23.078139),
])
pocket7 = body.newObject("PartDesign::Pocket", "Pocket006")
pocket7.Profile = sketch9
pocket7.Length = 3.5

sketch10 = body.newObject("Sketcher::SketchObject", "Sketch009")
sketch10.AttachmentSupport = (doc.getObject("XZ_Plane"), [""])
sketch10.MapMode = "FlatFace"
sketch10.AttachmentOffset = App.Placement(App.Vector(0, 0, -5), App.Rotation())
sketch10.addGeometry([
    Part.Circle(App.Vector(0, 0, 0), App.Vector(0, 0, 1), 55),
    Part.Circle(App.Vector(-48.745563, 11.129693, 0), App.Vector(0, 0, 1), 2.1),
    Part.Circle(App.Vector(-21.690817, 45.050066, 0), App.Vector(0, 0, 1), 2.1),
    Part.ArcOfCircle(Part.Circle(App.Vector(0, 0, 0), App.Vector(0, 0, 1), 42.95), math.radians(-155.675548), math.radians(-144.324452)),
    Part.ArcOfCircle(Part.Circle(App.Vector(-35.492314, -16.043633, 0), App.Vector(0, 0, 1), 4), math.radians(143.137509), math.radians(204.324452)),
    Part.ArcOfCircle(Part.Circle(App.Vector(-42.693012, -10.644563, 0), App.Vector(0, 0, 1), 5), math.radians(-36.862491), math.radians(14)),
    Part.ArcOfCircle(Part.Circle(App.Vector(0, 0, 0), App.Vector(0, 0, 1), 39), math.radians(166), math.radians(194)),
    Part.ArcOfCircle(Part.Circle(App.Vector(-42.693012, 10.644563, 0), App.Vector(0, 0, 1), 5), math.radians(-14), math.radians(36.862491)),
    Part.ArcOfCircle(Part.Circle(App.Vector(-35.492314, 16.043633, 0), App.Vector(0, 0, 1), 4), math.radians(155.675548), math.radians(216.862491)),
    Part.ArcOfCircle(Part.Circle(App.Vector(0, 0, 0), App.Vector(0, 0, 1), 42.95), math.radians(144.324452), math.radians(155.675548)),
    Part.ArcOfCircle(Part.Circle(App.Vector(-31.64035, 22.715429, 0), App.Vector(0, 0, 1), 4), math.radians(83.137509), math.radians(144.324452)),
    Part.ArcOfCircle(Part.Circle(App.Vector(-30.564968, 31.650951, 0), App.Vector(0, 0, 1), 5), math.radians(-96.862491), math.radians(-46)),
    Part.ArcOfCircle(Part.Circle(App.Vector(0, 0, 0), App.Vector(0, 0, 1), 39), math.radians(106), math.radians(134)),
    Part.ArcOfCircle(Part.Circle(App.Vector(-12.128044, 42.295515, 0), App.Vector(0, 0, 1), 5), math.radians(-74), math.radians(-23.137509)),
    Part.ArcOfCircle(Part.Circle(App.Vector(-3.851964, 38.759062, 0), App.Vector(0, 0, 1), 4), math.radians(95.675548), math.radians(156.862491)),
    Part.ArcOfCircle(Part.Circle(App.Vector(0, 0, 0), App.Vector(0, 0, 1), 42.95), math.radians(84.324452), math.radians(95.675548)),
    Part.ArcOfCircle(Part.Circle(App.Vector(3.851964, 38.759062, 0), App.Vector(0, 0, 1), 4), math.radians(23.137509), math.radians(84.324452)),
    Part.ArcOfCircle(Part.Circle(App.Vector(12.128044, 42.295515, 0), App.Vector(0, 0, 1), 5), math.radians(-156.862491), math.radians(-106)),
    Part.ArcOfCircle(Part.Circle(App.Vector(0, 0, 0), App.Vector(0, 0, 1), 39), math.radians(46), math.radians(74)),
    Part.ArcOfCircle(Part.Circle(App.Vector(30.564968, 31.650951, 0), App.Vector(0, 0, 1), 5), math.radians(-134), math.radians(-83.137509)),
    Part.ArcOfCircle(Part.Circle(App.Vector(31.64035, 22.715429, 0), App.Vector(0, 0, 1), 4), math.radians(35.675548), math.radians(96.862491)),
    Part.ArcOfCircle(Part.Circle(App.Vector(0, 0, 0), App.Vector(0, 0, 1), 42.95), math.radians(24.324452), math.radians(35.675548)),
    Part.ArcOfCircle(Part.Circle(App.Vector(35.492314, 16.043633, 0), App.Vector(0, 0, 1), 4), math.radians(-36.862491), math.radians(24.324452)),
    Part.ArcOfCircle(Part.Circle(App.Vector(42.693012, 10.644563, 0), App.Vector(0, 0, 1), 5), math.radians(143.137509), math.radians(194)),
    Part.ArcOfCircle(Part.Circle(App.Vector(0, 0, 0), App.Vector(0, 0, 1), 39), math.radians(-14), math.radians(14)),
    Part.ArcOfCircle(Part.Circle(App.Vector(42.693012, -10.644563, 0), App.Vector(0, 0, 1), 5), math.radians(166), math.radians(216.862491)),
    Part.ArcOfCircle(Part.Circle(App.Vector(35.492314, -16.043633, 0), App.Vector(0, 0, 1), 4), math.radians(-24.324452), math.radians(36.862491)),
    Part.ArcOfCircle(Part.Circle(App.Vector(0, 0, 0), App.Vector(0, 0, 1), 42.95), math.radians(-35.675548), math.radians(-24.324452)),
    Part.ArcOfCircle(Part.Circle(App.Vector(31.64035, -22.715429, 0), App.Vector(0, 0, 1), 4), math.radians(-96.862491), math.radians(-35.675548)),
    Part.ArcOfCircle(Part.Circle(App.Vector(30.564968, -31.650951, 0), App.Vector(0, 0, 1), 5), math.radians(83.137509), math.radians(134)),
    Part.ArcOfCircle(Part.Circle(App.Vector(0, 0, 0), App.Vector(0, 0, 1), 39), math.radians(-74), math.radians(-46)),
    Part.ArcOfCircle(Part.Circle(App.Vector(12.128044, -42.295515, 0), App.Vector(0, 0, 1), 5), math.radians(106), math.radians(156.862491)),
    Part.ArcOfCircle(Part.Circle(App.Vector(3.851964, -38.759062, 0), App.Vector(0, 0, 1), 4), math.radians(-84.324452), math.radians(-23.137509)),
    Part.ArcOfCircle(Part.Circle(App.Vector(0, 0, 0), App.Vector(0, 0, 1), 42.95), math.radians(-95.675548), math.radians(-84.324452)),
    Part.ArcOfCircle(Part.Circle(App.Vector(-3.851964, -38.759062, 0), App.Vector(0, 0, 1), 4), math.radians(-156.862491), math.radians(-95.675548)),
    Part.ArcOfCircle(Part.Circle(App.Vector(-12.128044, -42.295515, 0), App.Vector(0, 0, 1), 5), math.radians(23.137509), math.radians(74)),
    Part.ArcOfCircle(Part.Circle(App.Vector(0, 0, 0), App.Vector(0, 0, 1), 39), math.radians(-134), math.radians(-106)),
    Part.ArcOfCircle(Part.Circle(App.Vector(-30.564968, -31.650951, 0), App.Vector(0, 0, 1), 5), math.radians(46), math.radians(96.862491)),
    Part.ArcOfCircle(Part.Circle(App.Vector(-31.64035, -22.715429, 0), App.Vector(0, 0, 1), 4), math.radians(-144.324452), math.radians(-83.137509)),
    Part.Circle(App.Vector(-39.093906, -31.171566, 0), App.Vector(0, 0, 1), 2.1),
    Part.Circle(App.Vector(-0.00374, -50, 0), App.Vector(0, 0, 1), 2.1),
    Part.Circle(App.Vector(21.697557, 45.046821, 0), App.Vector(0, 0, 1), 2.1),
    Part.Circle(App.Vector(48.747228, 11.1224, 0), App.Vector(0, 0, 1), 2.1),
    Part.Circle(App.Vector(39.089242, -31.177414, 0), App.Vector(0, 0, 1), 2.1),
], False)
sketch10.addConstraint([
    Sketcher.Constraint("Tangent", 3, 1, 4, 2),
    Sketcher.Constraint("Tangent", 4, 1, 5, 1),
    Sketcher.Constraint("Tangent", 5, 2, 6, 2),
    Sketcher.Constraint("Tangent", 6, 1, 7, 1),
    Sketcher.Constraint("Tangent", 7, 2, 8, 2),
    Sketcher.Constraint("Tangent", 8, 1, 9, 2),
    Sketcher.Constraint("Tangent", 9, 1, 10, 2),
    Sketcher.Constraint("Tangent", 10, 1, 11, 1),
    Sketcher.Constraint("Tangent", 11, 2, 12, 2),
    Sketcher.Constraint("Tangent", 12, 1, 13, 1),
    Sketcher.Constraint("Tangent", 13, 2, 14, 2),
    Sketcher.Constraint("Tangent", 14, 1, 15, 2),
    Sketcher.Constraint("Tangent", 15, 1, 16, 2),
    Sketcher.Constraint("Tangent", 16, 1, 17, 1),
    Sketcher.Constraint("Tangent", 17, 2, 18, 2),
    Sketcher.Constraint("Tangent", 18, 1, 19, 1),
    Sketcher.Constraint("Tangent", 19, 2, 20, 2),
    Sketcher.Constraint("Tangent", 20, 1, 21, 2),
    Sketcher.Constraint("Tangent", 21, 1, 22, 2),
    Sketcher.Constraint("Tangent", 22, 1, 23, 1),
    Sketcher.Constraint("Tangent", 23, 2, 24, 2),
    Sketcher.Constraint("Tangent", 24, 1, 25, 1),
    Sketcher.Constraint("Tangent", 25, 2, 26, 2),
    Sketcher.Constraint("Tangent", 26, 1, 27, 2),
    Sketcher.Constraint("Tangent", 27, 1, 28, 2),
    Sketcher.Constraint("Tangent", 28, 1, 29, 1),
    Sketcher.Constraint("Tangent", 29, 2, 30, 2),
    Sketcher.Constraint("Tangent", 30, 1, 31, 1),
    Sketcher.Constraint("Tangent", 31, 2, 32, 2),
    Sketcher.Constraint("Tangent", 32, 1, 33, 2),
    Sketcher.Constraint("Tangent", 33, 1, 34, 2),
    Sketcher.Constraint("Tangent", 34, 1, 35, 1),
    Sketcher.Constraint("Tangent", 35, 2, 36, 2),
    Sketcher.Constraint("Tangent", 36, 1, 37, 1),
    Sketcher.Constraint("Tangent", 37, 2, 38, 2),
    Sketcher.Constraint("Tangent", 38, 1, 3, 2),
    Sketcher.Constraint("Coincident", 0, 3, -1, 1),
    Sketcher.Constraint("Coincident", 3, 3, -1, 1),
    Sketcher.Constraint("Coincident", 6, 3, -1, 1),
    Sketcher.Constraint("Coincident", 9, 3, -1, 1),
    Sketcher.Constraint("Coincident", 12, 3, -1, 1),
    Sketcher.Constraint("Coincident", 15, 3, -1, 1),
    Sketcher.Constraint("Coincident", 18, 3, -1, 1),
    Sketcher.Constraint("Coincident", 21, 3, -1, 1),
    Sketcher.Constraint("Coincident", 24, 3, -1, 1),
    Sketcher.Constraint("Coincident", 27, 3, -1, 1),
    Sketcher.Constraint("Coincident", 30, 3, -1, 1),
    Sketcher.Constraint("Coincident", 33, 3, -1, 1),
    Sketcher.Constraint("Coincident", 36, 3, -1, 1),
    Sketcher.Constraint("Equal", 1, 2),
    Sketcher.Constraint("Equal", 5, 7),
    Sketcher.Constraint("Equal", 4, 8),
    Sketcher.Constraint("Equal", 3, 9),
    Sketcher.Constraint("Equal", 8, 10),
    Sketcher.Constraint("Equal", 7, 11),
    Sketcher.Constraint("Equal", 6, 12),
    Sketcher.Constraint("Equal", 11, 13),
    Sketcher.Constraint("Equal", 10, 14),
    Sketcher.Constraint("Equal", 9, 15),
    Sketcher.Constraint("Equal", 14, 16),
    Sketcher.Constraint("Equal", 13, 17),
    Sketcher.Constraint("Equal", 12, 18),
    Sketcher.Constraint("Equal", 17, 19),
    Sketcher.Constraint("Equal", 16, 20),
    Sketcher.Constraint("Equal", 15, 21),
    Sketcher.Constraint("Equal", 20, 22),
    Sketcher.Constraint("Equal", 19, 23),
    Sketcher.Constraint("Equal", 18, 24),
    Sketcher.Constraint("Equal", 23, 25),
    Sketcher.Constraint("Equal", 22, 26),
    Sketcher.Constraint("Equal", 21, 27),
    Sketcher.Constraint("Equal", 26, 28),
    Sketcher.Constraint("Equal", 25, 29),
    Sketcher.Constraint("Equal", 24, 30),
    Sketcher.Constraint("Equal", 29, 31),
    Sketcher.Constraint("Equal", 28, 32),
    Sketcher.Constraint("Equal", 27, 33),
    Sketcher.Constraint("Equal", 32, 34),
    Sketcher.Constraint("Equal", 31, 35),
    Sketcher.Constraint("Equal", 30, 36),
    Sketcher.Constraint("Equal", 35, 37),
    Sketcher.Constraint("Equal", 34, 38),
    Sketcher.Constraint("Equal", 2, 39),
    Sketcher.Constraint("Equal", 39, 40),
    Sketcher.Constraint("Equal", 40, 41),
    Sketcher.Constraint("Equal", 41, 42),
    Sketcher.Constraint("Equal", 42, 43),
    Sketcher.Constraint("Horizontal", 14, 3, 16, 3),
    Sketcher.Constraint("Horizontal", 11, 3, 19, 3),
    Sketcher.Constraint("Horizontal", 8, 3, 22, 3),
    Sketcher.Constraint("Horizontal", 5, 3, 25, 3),
    Sketcher.Constraint("Horizontal", 32, 3, 34, 3),
    Sketcher.Constraint("Horizontal", 29, 3, 37, 3),
    Sketcher.Constraint("Vertical", 5, 3, 7, 3),
    Sketcher.Constraint("Vertical", 20, 3, 28, 3),
    Sketcher.Constraint("Vertical", 17, 3, 31, 3),
    Sketcher.Constraint("Diameter", 0, 110.0),
    Sketcher.Constraint("Radius", 4, 4.0),
    Sketcher.Constraint("Radius", 5, 5.0),
    Sketcher.Constraint("Radius", 6, 39.0),
    Sketcher.Constraint("Diameter", 1, 4.2),
    Sketcher.Constraint("Radius", 3, 42.95),
    Sketcher.Constraint("DistanceY", 40, 3, -1, 1, 50.0),
    Sketcher.Constraint("DistanceY", -1, 1, 42, 3, 11.1224),
    Sketcher.Constraint("DistanceX", 5, 3, -1, 1, 42.693012),
    Sketcher.Constraint("DistanceX", 10, 3, -1, 1, 31.64035),
    Sketcher.Constraint("DistanceY", -1, 1, 14, 3, 38.759062),
    Sketcher.Constraint("DistanceX", 40, 3, -1, 1, 0.00374),
    Sketcher.Constraint("DistanceY", -1, 1, 41, 3, 45.046821),
    Sketcher.Constraint("DistanceX", 1, 3, -1, 1, 48.745563),
    Sketcher.Constraint("DistanceY", -1, 1, 1, 3, 11.129693),
    Sketcher.Constraint("DistanceX", 2, 3, -1, 1, 21.690817),
    Sketcher.Constraint("DistanceY", -1, 1, 2, 3, 45.050066),
    Sketcher.Constraint("DistanceX", 39, 3, -1, 1, 39.093906),
    Sketcher.Constraint("DistanceY", 39, 3, -1, 1, 31.171566),
    Sketcher.Constraint("DistanceX", -1, 1, 41, 3, 21.697557),
    Sketcher.Constraint("DistanceX", -1, 1, 42, 3, 48.747228),
    Sketcher.Constraint("DistanceX", -1, 1, 43, 3, 39.089242),
    Sketcher.Constraint("DistanceY", 43, 3, -1, 1, 31.177414),
])
pad2 = body.newObject("PartDesign::Pad", "Pad001")
pad2.Profile = sketch10
pad2.Length = 5

doc.recompute()
